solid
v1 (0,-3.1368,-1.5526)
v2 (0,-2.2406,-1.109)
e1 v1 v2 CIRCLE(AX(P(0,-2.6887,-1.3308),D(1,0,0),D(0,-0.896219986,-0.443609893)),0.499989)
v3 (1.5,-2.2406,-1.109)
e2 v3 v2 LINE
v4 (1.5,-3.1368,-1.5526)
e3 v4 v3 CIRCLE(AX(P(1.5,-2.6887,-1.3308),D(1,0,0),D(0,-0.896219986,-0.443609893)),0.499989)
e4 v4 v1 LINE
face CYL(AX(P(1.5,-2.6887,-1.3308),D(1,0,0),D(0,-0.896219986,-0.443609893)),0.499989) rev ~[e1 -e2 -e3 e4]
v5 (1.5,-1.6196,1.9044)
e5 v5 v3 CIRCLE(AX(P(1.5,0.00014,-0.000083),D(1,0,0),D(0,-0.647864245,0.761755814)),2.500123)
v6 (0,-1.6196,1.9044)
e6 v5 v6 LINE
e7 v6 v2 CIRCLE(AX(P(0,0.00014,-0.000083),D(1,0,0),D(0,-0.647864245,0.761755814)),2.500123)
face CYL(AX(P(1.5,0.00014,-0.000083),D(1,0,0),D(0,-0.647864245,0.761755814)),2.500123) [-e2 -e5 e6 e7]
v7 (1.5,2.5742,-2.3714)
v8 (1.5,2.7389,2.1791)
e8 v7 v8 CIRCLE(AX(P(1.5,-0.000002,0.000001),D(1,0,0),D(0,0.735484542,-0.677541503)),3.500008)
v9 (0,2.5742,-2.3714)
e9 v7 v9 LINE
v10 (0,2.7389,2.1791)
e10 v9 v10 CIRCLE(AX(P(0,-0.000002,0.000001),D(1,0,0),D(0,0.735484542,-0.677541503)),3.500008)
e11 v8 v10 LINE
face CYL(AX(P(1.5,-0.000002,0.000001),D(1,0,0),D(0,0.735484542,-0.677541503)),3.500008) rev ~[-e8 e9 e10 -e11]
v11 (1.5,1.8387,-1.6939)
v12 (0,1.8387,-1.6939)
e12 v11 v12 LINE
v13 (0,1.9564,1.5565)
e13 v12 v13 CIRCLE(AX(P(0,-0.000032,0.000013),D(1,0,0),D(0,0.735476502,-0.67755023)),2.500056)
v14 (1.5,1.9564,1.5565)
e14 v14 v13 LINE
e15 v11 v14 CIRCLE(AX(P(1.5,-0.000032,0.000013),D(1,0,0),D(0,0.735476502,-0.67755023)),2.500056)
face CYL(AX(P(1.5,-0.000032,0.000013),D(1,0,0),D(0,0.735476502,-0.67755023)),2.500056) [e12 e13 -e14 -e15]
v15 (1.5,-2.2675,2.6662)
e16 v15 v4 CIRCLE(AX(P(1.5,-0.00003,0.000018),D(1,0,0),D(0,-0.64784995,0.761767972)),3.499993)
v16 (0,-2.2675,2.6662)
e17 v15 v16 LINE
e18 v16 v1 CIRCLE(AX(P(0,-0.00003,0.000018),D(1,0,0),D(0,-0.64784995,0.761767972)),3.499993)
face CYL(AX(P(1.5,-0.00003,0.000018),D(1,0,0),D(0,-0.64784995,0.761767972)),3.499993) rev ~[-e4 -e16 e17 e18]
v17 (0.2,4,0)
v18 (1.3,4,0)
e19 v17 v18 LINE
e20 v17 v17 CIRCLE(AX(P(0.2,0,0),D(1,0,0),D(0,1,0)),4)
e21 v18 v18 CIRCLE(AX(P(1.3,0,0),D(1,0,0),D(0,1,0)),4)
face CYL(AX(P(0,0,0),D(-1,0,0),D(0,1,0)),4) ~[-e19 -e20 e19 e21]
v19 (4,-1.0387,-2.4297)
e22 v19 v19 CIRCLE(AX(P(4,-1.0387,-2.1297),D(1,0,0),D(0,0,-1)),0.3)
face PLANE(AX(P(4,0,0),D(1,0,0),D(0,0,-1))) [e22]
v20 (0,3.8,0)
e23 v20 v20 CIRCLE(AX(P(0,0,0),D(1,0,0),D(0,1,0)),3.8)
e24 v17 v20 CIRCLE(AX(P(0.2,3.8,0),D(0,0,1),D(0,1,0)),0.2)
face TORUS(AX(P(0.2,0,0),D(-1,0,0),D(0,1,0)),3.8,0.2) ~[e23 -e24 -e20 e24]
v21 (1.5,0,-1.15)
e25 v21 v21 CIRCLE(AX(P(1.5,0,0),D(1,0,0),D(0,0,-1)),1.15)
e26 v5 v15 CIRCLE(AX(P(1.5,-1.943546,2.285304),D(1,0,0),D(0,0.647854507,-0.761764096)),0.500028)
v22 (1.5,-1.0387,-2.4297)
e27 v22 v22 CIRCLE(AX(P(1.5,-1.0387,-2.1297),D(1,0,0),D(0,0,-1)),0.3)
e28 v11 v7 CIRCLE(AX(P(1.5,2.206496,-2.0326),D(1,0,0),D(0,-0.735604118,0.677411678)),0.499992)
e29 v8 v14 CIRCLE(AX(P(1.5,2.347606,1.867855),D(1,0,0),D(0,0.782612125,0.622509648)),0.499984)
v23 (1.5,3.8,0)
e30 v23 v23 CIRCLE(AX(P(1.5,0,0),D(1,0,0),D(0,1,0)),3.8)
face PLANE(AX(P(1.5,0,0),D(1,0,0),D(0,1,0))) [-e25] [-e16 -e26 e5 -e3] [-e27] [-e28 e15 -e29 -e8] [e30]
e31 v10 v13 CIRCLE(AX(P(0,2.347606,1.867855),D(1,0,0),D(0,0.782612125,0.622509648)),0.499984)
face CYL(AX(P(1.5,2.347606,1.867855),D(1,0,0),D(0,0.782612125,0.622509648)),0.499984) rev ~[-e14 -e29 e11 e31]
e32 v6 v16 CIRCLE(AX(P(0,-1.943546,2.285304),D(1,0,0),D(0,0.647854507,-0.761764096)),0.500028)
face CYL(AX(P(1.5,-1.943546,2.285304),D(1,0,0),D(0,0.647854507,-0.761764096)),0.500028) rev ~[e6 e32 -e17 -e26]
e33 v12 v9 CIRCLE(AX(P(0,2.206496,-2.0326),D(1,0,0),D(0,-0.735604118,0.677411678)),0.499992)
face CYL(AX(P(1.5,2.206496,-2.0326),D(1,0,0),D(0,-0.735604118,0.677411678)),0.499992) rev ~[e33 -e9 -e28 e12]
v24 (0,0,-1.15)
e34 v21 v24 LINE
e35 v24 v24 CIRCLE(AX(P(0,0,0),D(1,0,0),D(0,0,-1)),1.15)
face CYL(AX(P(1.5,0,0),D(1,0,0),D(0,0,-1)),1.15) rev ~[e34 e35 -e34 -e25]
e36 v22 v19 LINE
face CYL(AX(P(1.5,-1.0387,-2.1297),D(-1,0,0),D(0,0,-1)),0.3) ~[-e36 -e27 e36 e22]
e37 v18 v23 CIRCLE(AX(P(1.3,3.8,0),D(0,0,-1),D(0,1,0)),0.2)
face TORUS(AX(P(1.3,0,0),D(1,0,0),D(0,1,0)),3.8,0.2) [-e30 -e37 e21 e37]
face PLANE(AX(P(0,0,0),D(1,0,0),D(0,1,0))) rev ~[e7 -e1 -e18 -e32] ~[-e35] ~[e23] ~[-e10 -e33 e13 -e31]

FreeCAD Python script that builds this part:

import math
import FreeCAD as App
import Part
import Sketcher
from FreeCAD import Vector


def edges_at(feature, points):
    """Names of the edges that pass closest to the given points."""
    edges = feature.Shape.Edges
    near = lambda p: min(range(len(edges)), key=lambda i: edges[i].distToShape(Part.Vertex(*p))[0])
    return sorted({f"Edge{near(p) + 1}" for p in points})

doc = App.newDocument("Part")
body = doc.addObject("PartDesign::Body", "Body")

sketch1 = doc.addObject("Sketcher::SketchObject", "Sketch")
body.addObject(sketch1)
sketch1.AttachmentSupport = (doc.YZ_Plane, [""])
sketch1.MapMode = "FlatFace"
sketch1.addGeometry(Part.Circle(Vector(0, 0, 0), Vector(0, 0, 1), 4), False)
sketch1.addConstraint(Sketcher.Constraint("Coincident", 0, 3, -1, 1))
sketch1.addConstraint(Sketcher.Constraint("Diameter", 0, 8.0))
pad1 = doc.addObject("PartDesign::Pad", "Pad")
body.addObject(pad1)
pad1.Profile = sketch1
pad1.Length = 1.5

sketch2 = doc.addObject("Sketcher::SketchObject", "Sketch001")
body.addObject(sketch2)
sketch2.AttachmentSupport = (doc.YZ_Plane, [""])
sketch2.MapMode = "FlatFace"
sketch2.AttachmentOffset = App.Placement(Vector(0, 0, 1.5), App.Rotation())
sketch2.addGeometry(Part.Circle(Vector(0, 0, 0), Vector(0, 0, 1), 1.15), False)
sketch2.addGeometry(Part.ArcOfCircle(Part.Circle(Vector(0, 0, 0), Vector(0, 0, 1), 3.5), math.radians(-43), math.radians(39)), False)
sketch2.addGeometry(Part.ArcOfCircle(Part.Circle(Vector(2.35, 1.87, 0), Vector(0, 0, 1), 0.5), math.radians(39), math.radians(219)), False)
sketch2.addGeometry(Part.ArcOfCircle(Part.Circle(Vector(0, 0, 0), Vector(0, 0, 1), 2.5), math.radians(-43), math.radians(39)), False)
sketch2.addGeometry(Part.ArcOfCircle(Part.Circle(Vector(2.21, -2.03, 0), Vector(0, 0, 1), 0.5), math.radians(137), math.radians(317)), False)
sketch2.addGeometry(Part.ArcOfCircle(Part.Circle(Vector(0, 0, 0), Vector(0, 0, 1), 2.5), math.radians(130), math.radians(206)), False)
sketch2.addGeometry(Part.ArcOfCircle(Part.Circle(Vector(-1.94, 2.29, 0), Vector(0, 0, 1), 0.5), math.radians(-50), math.radians(130)), False)
sketch2.addGeometry(Part.ArcOfCircle(Part.Circle(Vector(0, 0, 0), Vector(0, 0, 1), 3.5), math.radians(130), math.radians(206)), False)
sketch2.addGeometry(Part.ArcOfCircle(Part.Circle(Vector(-2.69, -1.33, 0), Vector(0, 0, 1), 0.5), math.radians(-154), math.radians(26)), False)
sketch2.addConstraint(Sketcher.Constraint("Tangent", 1, 2, 2, 1))
sketch2.addConstraint(Sketcher.Constraint("Tangent", 2, 2, 3, 2))
sketch2.addConstraint(Sketcher.Constraint("Tangent", 3, 1, 4, 1))
sketch2.addConstraint(Sketcher.Constraint("Tangent", 4, 2, 1, 1))
sketch2.addConstraint(Sketcher.Constraint("Tangent", 5, 1, 6, 1))
sketch2.addConstraint(Sketcher.Constraint("Tangent", 6, 2, 7, 1))
sketch2.addConstraint(Sketcher.Constraint("Tangent", 7, 2, 8, 1))
sketch2.addConstraint(Sketcher.Constraint("Tangent", 8, 2, 5, 2))
sketch2.addConstraint(Sketcher.Constraint("Coincident", 0, 3, -1, 1))
sketch2.addConstraint(Sketcher.Constraint("Coincident", 1, 3, -1, 1))
sketch2.addConstraint(Sketcher.Constraint("Coincident", 3, 3, -1, 1))
sketch2.addConstraint(Sketcher.Constraint("Coincident", 5, 3, -1, 1))
sketch2.addConstraint(Sketcher.Constraint("Coincident", 7, 3, -1, 1))
sketch2.addConstraint(Sketcher.Constraint("Equal", 3, 5))
sketch2.addConstraint(Sketcher.Constraint("Equal", 4, 6))
sketch2.addConstraint(Sketcher.Constraint("Diameter", 0, 2.3))
sketch2.addConstraint(Sketcher.Constraint("Radius", 2, 0.5))
sketch2.addConstraint(Sketcher.Constraint("Radius", 1, 3.5))
sketch2.addConstraint(Sketcher.Constraint("DistanceX", -1, 1, 1, 2, 2.739))
sketch2.addConstraint(Sketcher.Constraint("DistanceY", 3, 1, -1, 1, 1.694))
sketch2.addConstraint(Sketcher.Constraint("DistanceY", 8, 2, -1, 1, 1.109))
sketch2.addConstraint(Sketcher.Constraint("DistanceX", 6, 3, 2, 3, 4.291))
pocket1 = doc.addObject("PartDesign::Pocket", "Pocket")
body.addObject(pocket1)
pocket1.Profile = sketch2
pocket1.Length = 2
doc.recompute()

fillet = doc.addObject("PartDesign::Fillet", "Fillet")
body.addObject(fillet)
fillet.Base = (pocket1, edges_at(pocket1, [(1.5, -4, 0)]))
fillet.Radius = 0.2
doc.recompute()

fillet2 = doc.addObject("PartDesign::Fillet", "Fillet001")
body.addObject(fillet2)
fillet2.Base = (fillet, edges_at(fillet, [(0, -4, 0)]))
fillet2.Radius = 0.2

sketch3 = doc.addObject("Sketcher::SketchObject", "Sketch002")
body.addObject(sketch3)
sketch3.AttachmentSupport = (doc.YZ_Plane, [""])
sketch3.MapMode = "FlatFace"
sketch3.AttachmentOffset = App.Placement(Vector(0, 0, 1.5), App.Rotation())
sketch3.addGeometry(Part.Circle(Vector(-1.04, -2.13, 0), Vector(0, 0, 1), 0.3), False)
sketch3.addConstraint(Sketcher.Constraint("Diameter", 0, 0.6))
sketch3.addConstraint(Sketcher.Constraint("DistanceX", 0, 3, -1, 1, 1.0387))
sketch3.addConstraint(Sketcher.Constraint("DistanceY", 0, 3, -1, 1, 2.1297))
pad2 = doc.addObject("PartDesign::Pad", "Pad001")
body.addObject(pad2)
pad2.Profile = sketch3
pad2.Length = 2.5

doc.recompute()
